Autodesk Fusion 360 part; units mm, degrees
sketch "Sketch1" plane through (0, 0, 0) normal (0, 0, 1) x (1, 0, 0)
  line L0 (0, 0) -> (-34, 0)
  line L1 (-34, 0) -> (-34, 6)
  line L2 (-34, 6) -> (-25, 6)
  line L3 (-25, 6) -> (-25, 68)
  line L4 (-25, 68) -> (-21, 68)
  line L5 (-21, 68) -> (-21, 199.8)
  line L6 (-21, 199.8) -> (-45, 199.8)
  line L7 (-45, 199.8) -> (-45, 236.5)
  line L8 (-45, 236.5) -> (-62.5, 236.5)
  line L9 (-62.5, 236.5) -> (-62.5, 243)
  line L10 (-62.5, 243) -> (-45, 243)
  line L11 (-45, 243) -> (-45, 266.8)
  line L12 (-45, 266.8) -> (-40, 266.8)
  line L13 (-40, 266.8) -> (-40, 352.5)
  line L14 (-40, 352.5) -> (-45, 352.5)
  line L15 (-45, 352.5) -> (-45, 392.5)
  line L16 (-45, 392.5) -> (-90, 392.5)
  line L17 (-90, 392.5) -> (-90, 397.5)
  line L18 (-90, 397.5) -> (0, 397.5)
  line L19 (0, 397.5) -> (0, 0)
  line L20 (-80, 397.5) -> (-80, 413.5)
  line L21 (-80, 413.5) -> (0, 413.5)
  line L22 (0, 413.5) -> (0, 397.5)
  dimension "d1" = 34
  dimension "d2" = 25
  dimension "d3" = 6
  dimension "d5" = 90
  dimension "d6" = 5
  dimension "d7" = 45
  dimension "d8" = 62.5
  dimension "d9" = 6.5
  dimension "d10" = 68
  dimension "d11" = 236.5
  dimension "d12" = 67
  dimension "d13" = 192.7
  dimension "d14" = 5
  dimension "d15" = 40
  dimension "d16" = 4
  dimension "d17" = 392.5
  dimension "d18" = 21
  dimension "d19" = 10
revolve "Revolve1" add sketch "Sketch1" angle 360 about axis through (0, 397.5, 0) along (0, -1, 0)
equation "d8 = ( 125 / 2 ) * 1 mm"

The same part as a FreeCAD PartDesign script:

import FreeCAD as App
import Part
import Sketcher
Q = App.Units.Quantity


def add_polygon(sketch, points):
    """Adds a closed chain of lines whose ends are joined by coincident constraints."""
    first, n = sketch.GeometryCount, len(points)
    for a, b in zip(points, points[1:] + points[:1]):
        sketch.addGeometry(Part.LineSegment(App.Vector(*a, 0), App.Vector(*b, 0)), False)
    for i in range(n):
        sketch.addConstraint(Sketcher.Constraint("Coincident", first + i, 2, first + (i + 1) % n, 1))

doc = App.newDocument("Part")
body = doc.addObject("PartDesign::Body", "Body")

sketch1 = doc.addObject("Sketcher::SketchObject", "Sketch")
body.addObject(sketch1)
sketch1.AttachmentSupport = (doc.XY_Plane, [""])
sketch1.MapMode = "FlatFace"
add_polygon(sketch1, [(-34, 0), (0, 0), (0, 413.5), (-80, 413.5), (-80, 397.5), (-90, 397.5), (-90, 392.5), (-45, 392.5), (-45, 352.5), (-40, 352.5), (-40, 266.8), (-45, 266.8), (-45, 243), (-62.5, 243), (-62.5, 236.5), (-45, 236.5), (-45, 199.8), (-21, 199.8), (-21, 68), (-25, 68), (-25, 6), (-34, 6)])
sketch1.addConstraint(Sketcher.Constraint("Horizontal", 0))
sketch1.addConstraint(Sketcher.Constraint("Vertical", 1))
sketch1.addConstraint(Sketcher.Constraint("Horizontal", 2))
sketch1.addConstraint(Sketcher.Constraint("Vertical", 3))
sketch1.addConstraint(Sketcher.Constraint("Horizontal", 4))
sketch1.addConstraint(Sketcher.Constraint("Vertical", 5))
sketch1.addConstraint(Sketcher.Constraint("Horizontal", 6))
sketch1.addConstraint(Sketcher.Constraint("Vertical", 7))
sketch1.addConstraint(Sketcher.Constraint("Horizontal", 8))
sketch1.addConstraint(Sketcher.Constraint("Vertical", 9))
sketch1.addConstraint(Sketcher.Constraint("Horizontal", 10))
sketch1.addConstraint(Sketcher.Constraint("Vertical", 11))
sketch1.addConstraint(Sketcher.Constraint("Horizontal", 12))
sketch1.addConstraint(Sketcher.Constraint("Vertical", 13))
sketch1.addConstraint(Sketcher.Constraint("Horizontal", 14))
sketch1.addConstraint(Sketcher.Constraint("Vertical", 15))
sketch1.addConstraint(Sketcher.Constraint("Horizontal", 16))
sketch1.addConstraint(Sketcher.Constraint("Vertical", 17))
sketch1.addConstraint(Sketcher.Constraint("Horizontal", 18))
sketch1.addConstraint(Sketcher.Constraint("Vertical", 19))
sketch1.addConstraint(Sketcher.Constraint("Horizontal", 20))
sketch1.addConstraint(Sketcher.Constraint("Vertical", 21))
sketch1.addConstraint(Sketcher.Constraint("Coincident", 0, 2, -1, 1))
sketch1.addConstraint(Sketcher.Constraint("Vertical", 7, 2, 10, 2))
sketch1.addConstraint(Sketcher.Constraint("Vertical", 11, 2, 14, 2))
sketch1.addConstraint(Sketcher.Constraint("Equal", 10, 5))
sketch1.addConstraint(Sketcher.Constraint("DistanceX", 0, 1, 0, 2, Q("34 mm")))
sketch1.addConstraint(Sketcher.Constraint("DistanceX", 4, 2, 4, 1, Q("10 mm")))
sketch1.addConstraint(Sketcher.Constraint("DistanceX", 6, 1, 6, 2, Q("45 mm")))
sketch1.addConstraint(Sketcher.Constraint("DistanceX", 8, 1, 8, 2, Q("5 mm")))
sketch1.addConstraint(Sketcher.Constraint("DistanceX", 18, 2, 18, 1, Q("4 mm")))
sketch1.addConstraint(Sketcher.Constraint("DistanceY", 7, 2, 7, 1, Q("40 mm")))
sketch1.addConstraint(Sketcher.Constraint("DistanceY", 21, 2, 21, 1, Q("6 mm")))
sketch1.addConstraint(Sketcher.Constraint("DistanceY", 13, 2, 13, 1, Q("6.5 mm")))
sketch1.addConstraint(Sketcher.Constraint("DistanceX", 4, 2, -1, 1, Q("90 mm")))
sketch1.addConstraint(Sketcher.Constraint("DistanceX", 16, 2, -1, 1, Q("21 mm")))
sketch1.addConstraint(Sketcher.Constraint("DistanceY", -1, 1, 17, 2, Q("68 mm")))
sketch1.addConstraint(Sketcher.Constraint("DistanceY", 5, 2, 2, 2, Q("21 mm")))
sketch1.addConstraint(Sketcher.Constraint("DistanceY", 15, 2, 10, 2, Q("67 mm")))
sketch1.addConstraint(Sketcher.Constraint("DistanceY", -1, 1, 5, 2, Q("392.5 mm")))
sketch1.addConstraint(Sketcher.Constraint("DistanceX", 12, 2, -1, 1, Q("62.5 mm")))
sketch1.addConstraint(Sketcher.Constraint("DistanceY", -1, 1, 13, 2, Q("236.5 mm")))
sketch1.addConstraint(Sketcher.Constraint("DistanceY", 9, 2, 9, 1, Q("85.7 mm")))
revolution = doc.addObject("PartDesign::Revolution", "Revolution")
body.addObject(revolution)
revolution.Profile = sketch1
revolution.ReferenceAxis = (sketch1, ["V_Axis"])
revolution.Angle = 360

doc.recompute()
